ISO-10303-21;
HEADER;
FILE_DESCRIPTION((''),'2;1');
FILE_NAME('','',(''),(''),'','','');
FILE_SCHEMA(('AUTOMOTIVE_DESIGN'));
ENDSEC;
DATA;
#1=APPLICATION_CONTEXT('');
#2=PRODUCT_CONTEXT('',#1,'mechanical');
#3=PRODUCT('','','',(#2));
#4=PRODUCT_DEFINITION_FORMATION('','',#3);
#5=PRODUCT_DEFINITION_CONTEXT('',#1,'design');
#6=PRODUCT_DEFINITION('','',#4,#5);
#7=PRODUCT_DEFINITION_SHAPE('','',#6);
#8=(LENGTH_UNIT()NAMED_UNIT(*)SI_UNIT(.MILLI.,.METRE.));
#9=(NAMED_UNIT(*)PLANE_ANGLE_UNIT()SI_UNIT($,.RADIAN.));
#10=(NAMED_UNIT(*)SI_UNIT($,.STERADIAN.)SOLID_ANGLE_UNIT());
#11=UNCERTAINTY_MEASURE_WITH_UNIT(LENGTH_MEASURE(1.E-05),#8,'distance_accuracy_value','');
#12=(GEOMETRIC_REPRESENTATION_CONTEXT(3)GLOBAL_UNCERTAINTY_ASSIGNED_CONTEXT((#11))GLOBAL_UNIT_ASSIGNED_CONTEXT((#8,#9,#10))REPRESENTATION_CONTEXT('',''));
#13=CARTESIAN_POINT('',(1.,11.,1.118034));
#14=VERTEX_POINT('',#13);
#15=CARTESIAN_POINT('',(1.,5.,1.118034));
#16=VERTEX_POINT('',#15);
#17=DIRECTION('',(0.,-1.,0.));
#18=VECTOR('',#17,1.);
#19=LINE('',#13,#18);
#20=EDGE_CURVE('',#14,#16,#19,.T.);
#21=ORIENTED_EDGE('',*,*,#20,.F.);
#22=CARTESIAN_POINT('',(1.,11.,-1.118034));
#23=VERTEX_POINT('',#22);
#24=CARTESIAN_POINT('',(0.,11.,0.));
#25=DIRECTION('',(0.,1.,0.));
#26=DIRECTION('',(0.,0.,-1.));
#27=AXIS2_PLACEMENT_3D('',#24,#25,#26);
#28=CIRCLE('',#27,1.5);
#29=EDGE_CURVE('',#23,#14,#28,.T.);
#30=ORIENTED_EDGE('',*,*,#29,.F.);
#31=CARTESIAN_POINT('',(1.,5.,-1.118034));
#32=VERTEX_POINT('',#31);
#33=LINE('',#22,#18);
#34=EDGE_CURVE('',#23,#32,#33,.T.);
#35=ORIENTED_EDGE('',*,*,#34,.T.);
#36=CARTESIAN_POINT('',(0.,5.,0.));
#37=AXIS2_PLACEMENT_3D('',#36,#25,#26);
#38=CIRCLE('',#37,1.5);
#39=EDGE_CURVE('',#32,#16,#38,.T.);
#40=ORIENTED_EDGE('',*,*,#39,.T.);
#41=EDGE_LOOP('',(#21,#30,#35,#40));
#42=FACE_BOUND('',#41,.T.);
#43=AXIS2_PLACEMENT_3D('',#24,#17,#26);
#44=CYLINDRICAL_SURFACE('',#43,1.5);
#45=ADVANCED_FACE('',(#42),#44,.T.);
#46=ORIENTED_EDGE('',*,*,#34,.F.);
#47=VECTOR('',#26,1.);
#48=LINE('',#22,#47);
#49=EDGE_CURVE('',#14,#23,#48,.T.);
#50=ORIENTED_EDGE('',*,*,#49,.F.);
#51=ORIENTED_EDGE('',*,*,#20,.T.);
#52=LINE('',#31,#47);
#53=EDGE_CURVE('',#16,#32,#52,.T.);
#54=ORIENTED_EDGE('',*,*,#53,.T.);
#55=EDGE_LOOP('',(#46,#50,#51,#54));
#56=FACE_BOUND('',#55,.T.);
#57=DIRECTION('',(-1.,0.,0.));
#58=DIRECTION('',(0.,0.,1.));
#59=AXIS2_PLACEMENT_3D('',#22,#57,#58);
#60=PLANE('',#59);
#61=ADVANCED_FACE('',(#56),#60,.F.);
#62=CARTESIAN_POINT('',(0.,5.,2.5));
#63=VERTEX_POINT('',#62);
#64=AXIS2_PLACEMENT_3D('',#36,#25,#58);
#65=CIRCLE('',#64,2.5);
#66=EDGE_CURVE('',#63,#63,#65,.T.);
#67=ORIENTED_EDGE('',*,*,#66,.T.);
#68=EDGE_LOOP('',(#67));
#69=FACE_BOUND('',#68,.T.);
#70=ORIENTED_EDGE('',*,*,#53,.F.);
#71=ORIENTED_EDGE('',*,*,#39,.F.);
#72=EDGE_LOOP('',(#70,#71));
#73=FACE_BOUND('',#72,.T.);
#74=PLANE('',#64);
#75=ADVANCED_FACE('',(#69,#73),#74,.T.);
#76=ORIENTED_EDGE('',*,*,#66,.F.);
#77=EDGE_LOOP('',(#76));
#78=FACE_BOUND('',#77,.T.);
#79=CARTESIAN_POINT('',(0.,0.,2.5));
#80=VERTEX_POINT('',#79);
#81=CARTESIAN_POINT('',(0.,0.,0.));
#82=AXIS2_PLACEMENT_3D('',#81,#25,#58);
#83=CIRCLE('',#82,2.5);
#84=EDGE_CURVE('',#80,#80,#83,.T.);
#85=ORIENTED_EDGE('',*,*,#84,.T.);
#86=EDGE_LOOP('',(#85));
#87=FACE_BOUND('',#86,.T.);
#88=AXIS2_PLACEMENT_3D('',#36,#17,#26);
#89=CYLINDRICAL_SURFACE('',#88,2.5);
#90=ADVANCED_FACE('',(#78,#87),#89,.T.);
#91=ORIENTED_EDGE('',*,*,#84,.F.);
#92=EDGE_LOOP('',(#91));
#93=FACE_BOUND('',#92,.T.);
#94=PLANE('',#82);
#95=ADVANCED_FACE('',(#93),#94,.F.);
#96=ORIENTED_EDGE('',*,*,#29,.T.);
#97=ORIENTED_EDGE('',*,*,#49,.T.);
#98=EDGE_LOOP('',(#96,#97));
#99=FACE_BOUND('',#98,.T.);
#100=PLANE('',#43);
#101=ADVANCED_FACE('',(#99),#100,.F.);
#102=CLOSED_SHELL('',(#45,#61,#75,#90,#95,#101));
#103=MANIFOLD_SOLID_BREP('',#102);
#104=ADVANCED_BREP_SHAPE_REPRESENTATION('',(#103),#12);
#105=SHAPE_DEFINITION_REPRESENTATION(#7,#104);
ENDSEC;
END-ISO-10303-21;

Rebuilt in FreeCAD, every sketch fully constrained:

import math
import FreeCAD as App
import Part
import Sketcher
from FreeCAD import Vector
Q = App.Units.Quantity

doc = App.newDocument("Part")
body = doc.addObject("PartDesign::Body", "Body")

# Sketch on XZ plane
sketch1 = body.newObject("Sketcher::SketchObject", "Sketch")
sketch1.AttachmentSupport = (doc.getObject("XZ_Plane"), [""])
sketch1.MapMode = "FlatFace"
sketch1.addGeometry(Part.Circle(Vector(0, 0, 0), Vector(0, 0, 1), 2.5), False)
sketch1.addConstraint([
    Sketcher.Constraint("Coincident", 0, 3, -1, 1),
    Sketcher.Constraint("Diameter", 0, Q("5 mm")),
])
pad1 = body.newObject("PartDesign::Pad", "Pad")
pad1.Profile = sketch1
pad1.Length = 5
pad1.Reversed = True

# Sketch on XZ plane
sketch2 = body.newObject("Sketcher::SketchObject", "Sketch001")
sketch2.AttachmentSupport = (doc.getObject("XZ_Plane"), [""])
sketch2.MapMode = "FlatFace"
sketch2.AttachmentOffset = App.Placement(Vector(0, 0, -5), App.Rotation())
sketch2.addGeometry([
    Part.LineSegment(Vector(1, 1.1, 0), Vector(1, -1.1, 0)),
    Part.ArcOfCircle(Part.Circle(Vector(0, 0, 0), Vector(0, 0, 1), 1.5), math.radians(48), math.radians(312)),
], False)
sketch2.addConstraint([
    Sketcher.Constraint("Coincident", 0, 1, 1, 1),
    Sketcher.Constraint("Coincident", 1, 2, 0, 2),
    Sketcher.Constraint("Vertical", 0),
    Sketcher.Constraint("Coincident", 1, 3, -1, 1),
    Sketcher.Constraint("Radius", 1, Q("1.5 mm")),
    Sketcher.Constraint("DistanceX", -1, 1, 0, 1, Q("1 mm")),
])
pad2 = body.newObject("PartDesign::Pad", "Pad001")
pad2.Profile = sketch2
pad2.Length = 6
pad2.Reversed = True

doc.recompute()
